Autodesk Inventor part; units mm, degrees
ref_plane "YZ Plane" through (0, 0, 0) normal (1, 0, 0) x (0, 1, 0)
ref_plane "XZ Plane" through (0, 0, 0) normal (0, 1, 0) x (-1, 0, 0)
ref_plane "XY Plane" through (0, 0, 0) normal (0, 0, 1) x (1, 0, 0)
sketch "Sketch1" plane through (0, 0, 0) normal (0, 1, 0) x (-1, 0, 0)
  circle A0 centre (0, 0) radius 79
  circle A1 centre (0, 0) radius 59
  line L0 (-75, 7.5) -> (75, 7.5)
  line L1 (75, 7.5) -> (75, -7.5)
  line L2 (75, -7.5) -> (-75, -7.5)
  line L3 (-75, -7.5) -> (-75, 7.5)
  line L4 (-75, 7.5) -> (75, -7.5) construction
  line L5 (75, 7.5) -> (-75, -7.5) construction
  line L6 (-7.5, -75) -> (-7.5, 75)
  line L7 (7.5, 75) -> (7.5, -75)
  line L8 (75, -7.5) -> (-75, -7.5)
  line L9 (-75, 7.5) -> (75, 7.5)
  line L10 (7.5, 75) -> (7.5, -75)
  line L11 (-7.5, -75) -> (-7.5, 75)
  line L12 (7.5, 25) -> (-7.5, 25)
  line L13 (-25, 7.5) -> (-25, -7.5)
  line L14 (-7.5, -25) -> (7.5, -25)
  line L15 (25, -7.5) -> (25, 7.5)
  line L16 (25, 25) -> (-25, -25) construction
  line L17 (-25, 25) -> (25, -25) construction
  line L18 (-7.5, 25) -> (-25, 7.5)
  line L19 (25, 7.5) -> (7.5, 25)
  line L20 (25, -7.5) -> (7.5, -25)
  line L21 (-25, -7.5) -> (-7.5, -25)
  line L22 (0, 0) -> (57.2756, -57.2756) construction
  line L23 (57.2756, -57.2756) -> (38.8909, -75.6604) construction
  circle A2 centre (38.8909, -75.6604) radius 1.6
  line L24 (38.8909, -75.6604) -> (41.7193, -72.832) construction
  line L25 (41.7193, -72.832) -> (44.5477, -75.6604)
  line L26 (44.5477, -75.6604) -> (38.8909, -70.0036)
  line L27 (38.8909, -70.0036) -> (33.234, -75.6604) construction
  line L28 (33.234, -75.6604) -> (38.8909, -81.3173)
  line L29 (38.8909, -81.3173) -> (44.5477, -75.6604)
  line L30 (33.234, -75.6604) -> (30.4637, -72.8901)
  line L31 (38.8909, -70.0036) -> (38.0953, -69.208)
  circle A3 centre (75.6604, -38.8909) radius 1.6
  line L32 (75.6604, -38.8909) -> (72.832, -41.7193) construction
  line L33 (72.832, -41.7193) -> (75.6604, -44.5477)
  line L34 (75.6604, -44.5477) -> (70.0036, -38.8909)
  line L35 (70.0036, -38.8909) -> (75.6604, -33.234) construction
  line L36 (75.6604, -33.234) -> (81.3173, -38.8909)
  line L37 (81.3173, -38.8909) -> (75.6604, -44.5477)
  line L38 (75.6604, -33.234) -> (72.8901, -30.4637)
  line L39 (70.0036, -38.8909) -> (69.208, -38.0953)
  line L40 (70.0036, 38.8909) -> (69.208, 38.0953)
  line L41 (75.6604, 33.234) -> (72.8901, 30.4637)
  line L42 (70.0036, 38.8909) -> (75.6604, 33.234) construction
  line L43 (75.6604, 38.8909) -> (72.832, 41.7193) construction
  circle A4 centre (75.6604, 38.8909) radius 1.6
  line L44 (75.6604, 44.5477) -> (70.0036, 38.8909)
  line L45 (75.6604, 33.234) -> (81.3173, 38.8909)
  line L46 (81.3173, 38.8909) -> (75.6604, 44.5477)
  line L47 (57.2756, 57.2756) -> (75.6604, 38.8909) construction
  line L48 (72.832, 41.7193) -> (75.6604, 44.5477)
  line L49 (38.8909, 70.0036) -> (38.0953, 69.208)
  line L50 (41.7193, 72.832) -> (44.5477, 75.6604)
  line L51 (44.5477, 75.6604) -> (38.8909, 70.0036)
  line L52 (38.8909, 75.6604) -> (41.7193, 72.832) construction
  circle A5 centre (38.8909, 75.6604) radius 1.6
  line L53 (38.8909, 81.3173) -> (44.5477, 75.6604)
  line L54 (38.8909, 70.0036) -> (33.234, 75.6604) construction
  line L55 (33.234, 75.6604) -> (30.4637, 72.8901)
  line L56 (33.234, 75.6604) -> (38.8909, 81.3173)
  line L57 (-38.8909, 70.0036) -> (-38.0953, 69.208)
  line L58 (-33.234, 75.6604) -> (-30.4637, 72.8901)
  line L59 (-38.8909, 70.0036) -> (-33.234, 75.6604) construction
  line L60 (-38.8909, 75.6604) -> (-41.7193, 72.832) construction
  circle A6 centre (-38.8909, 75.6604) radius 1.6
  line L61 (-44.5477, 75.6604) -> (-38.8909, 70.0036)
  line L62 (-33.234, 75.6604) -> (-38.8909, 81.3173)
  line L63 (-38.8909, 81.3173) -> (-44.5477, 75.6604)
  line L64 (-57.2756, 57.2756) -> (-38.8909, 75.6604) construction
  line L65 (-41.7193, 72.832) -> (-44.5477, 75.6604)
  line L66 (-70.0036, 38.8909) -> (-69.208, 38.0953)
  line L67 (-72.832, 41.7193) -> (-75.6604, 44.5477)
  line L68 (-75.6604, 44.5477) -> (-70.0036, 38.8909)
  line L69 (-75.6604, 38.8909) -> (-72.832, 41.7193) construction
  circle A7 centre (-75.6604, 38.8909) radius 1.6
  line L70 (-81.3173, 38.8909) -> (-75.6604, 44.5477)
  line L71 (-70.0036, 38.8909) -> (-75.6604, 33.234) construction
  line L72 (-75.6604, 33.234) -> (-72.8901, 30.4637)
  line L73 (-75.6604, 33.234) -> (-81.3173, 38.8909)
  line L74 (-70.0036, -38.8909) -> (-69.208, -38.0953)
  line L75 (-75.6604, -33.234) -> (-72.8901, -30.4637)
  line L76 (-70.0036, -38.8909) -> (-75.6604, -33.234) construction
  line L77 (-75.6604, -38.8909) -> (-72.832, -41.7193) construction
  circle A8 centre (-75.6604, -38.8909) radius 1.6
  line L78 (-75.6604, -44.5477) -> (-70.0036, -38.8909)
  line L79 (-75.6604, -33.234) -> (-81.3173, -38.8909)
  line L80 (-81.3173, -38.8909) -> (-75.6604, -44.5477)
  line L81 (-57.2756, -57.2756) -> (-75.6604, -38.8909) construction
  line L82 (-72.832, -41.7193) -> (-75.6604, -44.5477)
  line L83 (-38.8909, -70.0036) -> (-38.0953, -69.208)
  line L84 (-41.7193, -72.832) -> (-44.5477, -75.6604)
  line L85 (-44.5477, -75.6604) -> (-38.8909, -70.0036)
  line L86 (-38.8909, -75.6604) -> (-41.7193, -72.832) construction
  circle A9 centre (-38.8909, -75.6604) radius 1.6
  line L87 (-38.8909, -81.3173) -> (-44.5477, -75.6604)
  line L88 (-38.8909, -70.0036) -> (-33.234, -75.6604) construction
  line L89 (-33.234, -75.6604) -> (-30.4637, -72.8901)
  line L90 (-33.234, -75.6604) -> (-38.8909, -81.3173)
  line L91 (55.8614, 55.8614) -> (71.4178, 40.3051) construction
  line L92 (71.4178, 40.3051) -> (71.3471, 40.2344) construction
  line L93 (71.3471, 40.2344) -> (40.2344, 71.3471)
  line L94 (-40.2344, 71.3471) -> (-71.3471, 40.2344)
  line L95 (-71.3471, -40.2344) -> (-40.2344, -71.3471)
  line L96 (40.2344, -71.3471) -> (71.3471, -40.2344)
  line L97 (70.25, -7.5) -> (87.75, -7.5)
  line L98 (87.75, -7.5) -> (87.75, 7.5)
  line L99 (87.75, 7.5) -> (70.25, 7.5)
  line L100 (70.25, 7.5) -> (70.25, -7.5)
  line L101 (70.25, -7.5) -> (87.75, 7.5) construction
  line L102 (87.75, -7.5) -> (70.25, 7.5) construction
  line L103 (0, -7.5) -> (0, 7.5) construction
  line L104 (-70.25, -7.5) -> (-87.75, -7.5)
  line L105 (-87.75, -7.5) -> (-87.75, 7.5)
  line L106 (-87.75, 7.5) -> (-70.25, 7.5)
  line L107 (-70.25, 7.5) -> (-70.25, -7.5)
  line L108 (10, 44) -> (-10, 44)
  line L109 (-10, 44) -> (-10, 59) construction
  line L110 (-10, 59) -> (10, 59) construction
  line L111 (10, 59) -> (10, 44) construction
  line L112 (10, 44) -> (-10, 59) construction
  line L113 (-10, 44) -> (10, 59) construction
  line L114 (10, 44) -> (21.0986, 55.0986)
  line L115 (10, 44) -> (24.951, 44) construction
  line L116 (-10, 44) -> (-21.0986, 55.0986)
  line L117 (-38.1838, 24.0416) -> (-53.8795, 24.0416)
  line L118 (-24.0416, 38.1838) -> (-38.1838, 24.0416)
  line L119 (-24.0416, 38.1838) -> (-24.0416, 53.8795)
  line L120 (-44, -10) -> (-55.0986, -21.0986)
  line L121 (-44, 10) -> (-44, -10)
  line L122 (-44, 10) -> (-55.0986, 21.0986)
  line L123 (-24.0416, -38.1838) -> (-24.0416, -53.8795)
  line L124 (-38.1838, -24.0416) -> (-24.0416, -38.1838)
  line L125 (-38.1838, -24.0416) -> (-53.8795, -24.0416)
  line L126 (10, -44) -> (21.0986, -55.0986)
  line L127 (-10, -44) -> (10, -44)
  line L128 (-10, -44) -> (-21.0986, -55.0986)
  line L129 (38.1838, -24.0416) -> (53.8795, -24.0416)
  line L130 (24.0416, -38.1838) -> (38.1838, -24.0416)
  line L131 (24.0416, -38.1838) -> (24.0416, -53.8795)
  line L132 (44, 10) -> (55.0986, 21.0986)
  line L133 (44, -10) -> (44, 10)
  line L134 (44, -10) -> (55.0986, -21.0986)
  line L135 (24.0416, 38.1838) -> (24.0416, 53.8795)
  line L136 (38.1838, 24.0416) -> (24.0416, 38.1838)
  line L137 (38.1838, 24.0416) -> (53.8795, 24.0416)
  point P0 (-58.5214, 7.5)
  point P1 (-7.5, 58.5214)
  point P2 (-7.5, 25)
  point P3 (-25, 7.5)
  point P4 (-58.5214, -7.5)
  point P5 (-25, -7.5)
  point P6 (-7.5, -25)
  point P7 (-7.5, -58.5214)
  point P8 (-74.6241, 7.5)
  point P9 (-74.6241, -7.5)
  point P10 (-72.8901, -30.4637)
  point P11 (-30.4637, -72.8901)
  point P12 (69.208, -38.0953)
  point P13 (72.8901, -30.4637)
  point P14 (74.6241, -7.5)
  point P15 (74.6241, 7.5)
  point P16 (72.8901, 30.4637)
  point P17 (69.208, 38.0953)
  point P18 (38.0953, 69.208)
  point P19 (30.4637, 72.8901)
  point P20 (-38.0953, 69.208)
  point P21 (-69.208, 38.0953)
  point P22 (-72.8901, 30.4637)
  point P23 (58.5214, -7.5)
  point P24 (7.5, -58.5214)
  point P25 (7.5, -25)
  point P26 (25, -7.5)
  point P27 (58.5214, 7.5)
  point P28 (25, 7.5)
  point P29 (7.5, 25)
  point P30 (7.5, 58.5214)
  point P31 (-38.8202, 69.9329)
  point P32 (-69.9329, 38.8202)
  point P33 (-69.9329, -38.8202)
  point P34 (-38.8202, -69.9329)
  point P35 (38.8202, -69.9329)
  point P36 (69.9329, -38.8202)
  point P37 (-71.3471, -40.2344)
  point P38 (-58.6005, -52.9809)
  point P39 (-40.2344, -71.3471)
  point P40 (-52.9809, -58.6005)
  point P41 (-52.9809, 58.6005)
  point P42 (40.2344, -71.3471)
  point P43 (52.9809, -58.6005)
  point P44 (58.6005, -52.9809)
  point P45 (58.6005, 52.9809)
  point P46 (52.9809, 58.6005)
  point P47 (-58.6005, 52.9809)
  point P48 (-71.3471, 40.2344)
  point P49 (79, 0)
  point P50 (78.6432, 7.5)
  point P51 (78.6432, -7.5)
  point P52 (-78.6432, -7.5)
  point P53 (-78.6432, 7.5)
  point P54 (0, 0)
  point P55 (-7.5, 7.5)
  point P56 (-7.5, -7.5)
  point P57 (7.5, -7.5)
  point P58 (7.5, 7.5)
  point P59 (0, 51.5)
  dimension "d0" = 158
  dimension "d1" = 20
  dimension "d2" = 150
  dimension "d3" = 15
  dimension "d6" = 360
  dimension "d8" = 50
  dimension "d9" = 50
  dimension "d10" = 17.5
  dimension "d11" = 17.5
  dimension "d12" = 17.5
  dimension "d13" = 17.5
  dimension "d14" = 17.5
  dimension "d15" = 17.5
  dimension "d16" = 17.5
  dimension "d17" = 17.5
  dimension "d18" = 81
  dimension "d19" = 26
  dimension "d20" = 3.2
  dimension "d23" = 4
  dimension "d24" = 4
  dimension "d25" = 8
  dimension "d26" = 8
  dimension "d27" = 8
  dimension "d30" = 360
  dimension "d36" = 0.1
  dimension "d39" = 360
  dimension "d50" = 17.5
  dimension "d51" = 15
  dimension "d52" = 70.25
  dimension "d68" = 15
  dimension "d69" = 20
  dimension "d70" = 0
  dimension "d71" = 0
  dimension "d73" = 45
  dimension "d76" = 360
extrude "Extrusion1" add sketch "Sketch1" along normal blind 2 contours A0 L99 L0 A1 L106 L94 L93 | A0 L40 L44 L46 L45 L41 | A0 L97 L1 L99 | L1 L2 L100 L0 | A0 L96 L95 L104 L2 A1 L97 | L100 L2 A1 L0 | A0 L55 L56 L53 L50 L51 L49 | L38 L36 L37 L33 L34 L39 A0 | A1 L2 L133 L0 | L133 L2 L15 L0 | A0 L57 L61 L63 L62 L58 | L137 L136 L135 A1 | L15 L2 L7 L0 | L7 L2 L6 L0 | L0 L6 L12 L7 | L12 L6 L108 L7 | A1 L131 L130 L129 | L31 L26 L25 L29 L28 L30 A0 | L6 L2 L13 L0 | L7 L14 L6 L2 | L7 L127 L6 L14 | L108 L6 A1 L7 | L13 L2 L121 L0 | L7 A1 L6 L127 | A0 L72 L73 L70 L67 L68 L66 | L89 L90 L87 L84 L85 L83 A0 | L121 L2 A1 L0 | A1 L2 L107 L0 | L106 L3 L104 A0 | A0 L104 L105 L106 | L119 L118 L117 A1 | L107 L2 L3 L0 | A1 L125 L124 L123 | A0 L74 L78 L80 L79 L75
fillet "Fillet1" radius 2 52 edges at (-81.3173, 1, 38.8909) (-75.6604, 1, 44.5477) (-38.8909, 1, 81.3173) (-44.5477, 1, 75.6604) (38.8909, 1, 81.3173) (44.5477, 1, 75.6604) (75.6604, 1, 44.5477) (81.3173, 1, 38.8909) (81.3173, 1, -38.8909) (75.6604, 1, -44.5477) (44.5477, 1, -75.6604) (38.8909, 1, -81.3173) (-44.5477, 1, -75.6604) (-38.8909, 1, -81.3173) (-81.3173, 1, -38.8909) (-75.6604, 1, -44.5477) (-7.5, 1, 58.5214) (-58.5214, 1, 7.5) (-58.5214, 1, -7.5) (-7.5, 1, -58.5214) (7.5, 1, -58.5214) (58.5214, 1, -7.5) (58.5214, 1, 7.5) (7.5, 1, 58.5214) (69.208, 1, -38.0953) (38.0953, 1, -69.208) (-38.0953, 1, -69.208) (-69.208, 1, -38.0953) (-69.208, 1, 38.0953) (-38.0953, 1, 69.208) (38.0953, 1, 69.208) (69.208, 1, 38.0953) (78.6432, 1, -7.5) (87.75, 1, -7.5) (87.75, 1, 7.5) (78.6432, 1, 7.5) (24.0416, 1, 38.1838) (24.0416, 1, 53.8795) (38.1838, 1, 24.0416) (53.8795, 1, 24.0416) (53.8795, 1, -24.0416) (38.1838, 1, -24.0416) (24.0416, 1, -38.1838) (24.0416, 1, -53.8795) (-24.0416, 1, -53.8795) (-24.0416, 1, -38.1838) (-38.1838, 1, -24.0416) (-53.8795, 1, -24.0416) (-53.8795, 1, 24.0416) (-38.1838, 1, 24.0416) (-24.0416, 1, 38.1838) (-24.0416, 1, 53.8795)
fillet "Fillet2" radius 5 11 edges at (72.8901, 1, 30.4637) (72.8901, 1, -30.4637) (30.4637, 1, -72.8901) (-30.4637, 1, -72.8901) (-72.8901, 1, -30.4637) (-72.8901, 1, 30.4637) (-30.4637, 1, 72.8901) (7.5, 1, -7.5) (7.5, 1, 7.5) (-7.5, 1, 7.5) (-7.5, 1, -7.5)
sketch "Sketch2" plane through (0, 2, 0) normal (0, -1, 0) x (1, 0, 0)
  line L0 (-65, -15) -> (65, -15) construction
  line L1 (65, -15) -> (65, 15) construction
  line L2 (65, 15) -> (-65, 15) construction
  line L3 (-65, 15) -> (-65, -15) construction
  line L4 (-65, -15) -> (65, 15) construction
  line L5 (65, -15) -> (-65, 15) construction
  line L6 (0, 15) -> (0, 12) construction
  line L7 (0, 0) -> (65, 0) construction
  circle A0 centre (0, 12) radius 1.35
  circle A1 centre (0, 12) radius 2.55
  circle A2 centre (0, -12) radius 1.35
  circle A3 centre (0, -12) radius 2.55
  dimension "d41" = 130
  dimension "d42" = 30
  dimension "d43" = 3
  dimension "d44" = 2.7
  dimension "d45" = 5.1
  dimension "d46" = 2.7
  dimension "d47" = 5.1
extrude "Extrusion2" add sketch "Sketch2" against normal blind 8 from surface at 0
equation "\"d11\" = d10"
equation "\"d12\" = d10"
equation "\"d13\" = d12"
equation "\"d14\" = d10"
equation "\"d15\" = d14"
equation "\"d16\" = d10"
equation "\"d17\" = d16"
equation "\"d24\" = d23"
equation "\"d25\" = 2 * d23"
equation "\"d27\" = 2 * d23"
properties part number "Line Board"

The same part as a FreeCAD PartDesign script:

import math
import FreeCAD as App
import Part
import Sketcher
from FreeCAD import Vector


def edges_at(feature, points):
    """Names of the edges that pass closest to the given points."""
    edges = feature.Shape.Edges
    near = lambda p: min(range(len(edges)), key=lambda i: edges[i].distToShape(Part.Vertex(*p))[0])
    return sorted({f"Edge{near(p) + 1}" for p in points})

doc = App.newDocument("Part")
params = doc.addObject("Spreadsheet::Sheet", "Params")
for row, (alias, value) in enumerate([
    ("sketch1_radius", "79 mm"),
    ("sketch1_diameter", "3.2 mm"),
    ("sketch1_height", "15 mm"),
    ("sketch1_length", "8 mm"),
    ("sketch1_length2", "20 mm"),
    ("pad1_length", "2 mm"),
    ("fillet_radius", "2 mm"),
    ("fillet2_radius", "5 mm"),
    ("sketch2_diameter", "5.1 mm"),
    ("sketch2_diameter2", "2.7 mm"),
    ("pad2_length", "8 mm"),
], start=1):
    params.set(f"A{row}", alias)
    params.set(f"B{row}", "=" + value)
    params.setAlias(f"B{row}", alias)

body = doc.addObject("PartDesign::Body", "Body")

# Sketch on XZ plane
sketch1 = body.newObject("Sketcher::SketchObject", "Sketch")
sketch1.AttachmentSupport = (doc.getObject("XZ_Plane"), [""])
sketch1.MapMode = "FlatFace"
sketch1.addGeometry(Part.LineSegment(Vector(-72.9, 30.5, 0), Vector(-81.3, 38.9, 0)), False)
sketch1.addGeometry(Part.LineSegment(Vector(-81.3, 38.9, 0), Vector(-75.7, 44.5, 0)), False)
sketch1.addGeometry(Part.LineSegment(Vector(-75.7, 44.5, 0), Vector(-69.2, 38.1, 0)), False)
sketch1.addGeometry(Part.ArcOfCircle(Part.Circle(Vector(0, 0, 0), Vector(0, 0, 1), 79), math.radians(137.88), math.radians(151.17)), False)
sketch1.addGeometry(Part.LineSegment(Vector(-58.6, 53, 0), Vector(-53, 58.6, 0)), False)
sketch1.addGeometry(Part.ArcOfCircle(Part.Circle(Vector(0, 0, 0), Vector(0, 0, 1), 79), math.radians(118.83), math.radians(132.12)), False)
sketch1.addGeometry(Part.LineSegment(Vector(-38.1, 69.2, 0), Vector(-44.5, 75.7, 0)), False)
sketch1.addGeometry(Part.LineSegment(Vector(-44.5, 75.7, 0), Vector(-38.9, 81.3, 0)), False)
sketch1.addGeometry(Part.LineSegment(Vector(-38.9, 81.3, 0), Vector(-30.5, 72.9, 0)), False)
sketch1.addGeometry(Part.ArcOfCircle(Part.Circle(Vector(0, 0, 0), Vector(0, 0, 1), 79), math.radians(67), math.radians(113)), False)
sketch1.addGeometry(Part.LineSegment(Vector(30.5, 72.9, 0), Vector(38.9, 81.3, 0)), False)
sketch1.addGeometry(Part.LineSegment(Vector(38.9, 81.3, 0), Vector(44.5, 75.7, 0)), False)
sketch1.addGeometry(Part.LineSegment(Vector(44.5, 75.7, 0), Vector(38.1, 69.2, 0)), False)
sketch1.addGeometry(Part.ArcOfCircle(Part.Circle(Vector(0, 0, 0), Vector(0, 0, 1), 79), math.radians(47.88), math.radians(61.17)), False)
sketch1.addGeometry(Part.LineSegment(Vector(53, 58.6, 0), Vector(58.6, 53, 0)), False)
sketch1.addGeometry(Part.ArcOfCircle(Part.Circle(Vector(0, 0, 0), Vector(0, 0, 1), 79), math.radians(28.83), math.radians(42.12)), False)
sketch1.addGeometry(Part.LineSegment(Vector(69.2, 38.1, 0), Vector(75.7, 44.5, 0)), False)
sketch1.addGeometry(Part.LineSegment(Vector(75.7, 44.5, 0), Vector(81.3, 38.9, 0)), False)
sketch1.addGeometry(Part.LineSegment(Vector(81.3, 38.9, 0), Vector(72.9, 30.5, 0)), False)
sketch1.addGeometry(Part.ArcOfCircle(Part.Circle(Vector(0, 0, 0), Vector(0, 0, 1), 79), math.radians(5.45), math.radians(22.68)), False)
sketch1.addGeometry(Part.LineSegment(Vector(78.6, 7.5, 0), Vector(87.8, 7.5, 0)), False)
sketch1.addGeometry(Part.LineSegment(Vector(87.8, 7.5, 0), Vector(87.8, -7.5, 0)), False)
sketch1.addGeometry(Part.LineSegment(Vector(87.8, -7.5, 0), Vector(78.6, -7.5, 0)), False)
sketch1.addGeometry(Part.ArcOfCircle(Part.Circle(Vector(0, 0, 0), Vector(0, 0, 1), 79), math.radians(-22.68), math.radians(-5.45)), False)
sketch1.addGeometry(Part.LineSegment(Vector(72.9, -30.5, 0), Vector(81.3, -38.9, 0)), False)
sketch1.addGeometry(Part.LineSegment(Vector(81.3, -38.9, 0), Vector(75.7, -44.5, 0)), False)
sketch1.addGeometry(Part.LineSegment(Vector(75.7, -44.5, 0), Vector(69.2, -38.1, 0)), False)
sketch1.addGeometry(Part.ArcOfCircle(Part.Circle(Vector(0, 0, 0), Vector(0, 0, 1), 79), math.radians(-42.12), math.radians(-28.83)), False)
sketch1.addGeometry(Part.LineSegment(Vector(58.6, -53, 0), Vector(53, -58.6, 0)), False)
sketch1.addGeometry(Part.ArcOfCircle(Part.Circle(Vector(0, 0, 0), Vector(0, 0, 1), 79), math.radians(-61.17), math.radians(-47.88)), False)
sketch1.addGeometry(Part.LineSegment(Vector(38.1, -69.2, 0), Vector(44.5, -75.7, 0)), False)
sketch1.addGeometry(Part.LineSegment(Vector(44.5, -75.7, 0), Vector(38.9, -81.3, 0)), False)
sketch1.addGeometry(Part.LineSegment(Vector(38.9, -81.3, 0), Vector(30.5, -72.9, 0)), False)
sketch1.addGeometry(Part.ArcOfCircle(Part.Circle(Vector(0, 0, 0), Vector(0, 0, 1), 79), math.radians(-113), math.radians(-67)), False)
sketch1.addGeometry(Part.LineSegment(Vector(-30.5, -72.9, 0), Vector(-38.9, -81.3, 0)), False)
sketch1.addGeometry(Part.LineSegment(Vector(-38.9, -81.3, 0), Vector(-44.5, -75.7, 0)), False)
sketch1.addGeometry(Part.LineSegment(Vector(-44.5, -75.7, 0), Vector(-38.1, -69.2, 0)), False)
sketch1.addGeometry(Part.ArcOfCircle(Part.Circle(Vector(0, 0, 0), Vector(0, 0, 1), 79), math.radians(-132.12), math.radians(-118.83)), False)
sketch1.addGeometry(Part.LineSegment(Vector(-53, -58.6, 0), Vector(-58.6, -53, 0)), False)
sketch1.addGeometry(Part.ArcOfCircle(Part.Circle(Vector(0, 0, 0), Vector(0, 0, 1), 79), math.radians(-151.17), math.radians(-137.88)), False)
sketch1.addGeometry(Part.LineSegment(Vector(-69.2, -38.1, 0), Vector(-75.7, -44.5, 0)), False)
sketch1.addGeometry(Part.LineSegment(Vector(-75.7, -44.5, 0), Vector(-81.3, -38.9, 0)), False)
sketch1.addGeometry(Part.LineSegment(Vector(-81.3, -38.9, 0), Vector(-72.9, -30.5, 0)), False)
sketch1.addGeometry(Part.ArcOfCircle(Part.Circle(Vector(0, 0, 0), Vector(0, 0, 1), 79), math.radians(157), math.radians(203)), False)
sketch1.addGeometry(Part.LineSegment(Vector(-58.5, 7.5, 0), Vector(-7.5, 7.5, 0)), False)
sketch1.addGeometry(Part.LineSegment(Vector(-7.5, 7.5, 0), Vector(-7.5, 58.5, 0)), False)
sketch1.addGeometry(Part.ArcOfCircle(Part.Circle(Vector(0, 0, 0), Vector(0, 0, 1), 59), math.radians(97.3), math.radians(114.05)), False)
sketch1.addGeometry(Part.LineSegment(Vector(-24, 53.9, 0), Vector(-24, 38.2, 0)), False)
sketch1.addGeometry(Part.LineSegment(Vector(-24, 38.2, 0), Vector(-38.2, 24, 0)), False)
sketch1.addGeometry(Part.LineSegment(Vector(-38.2, 24, 0), Vector(-53.9, 24, 0)), False)
sketch1.addGeometry(Part.ArcOfCircle(Part.Circle(Vector(0, 0, 0), Vector(0, 0, 1), 59), math.radians(155.95), math.radians(172.7)), False)
sketch1.addGeometry(Part.LineSegment(Vector(7.5, 58.5, 0), Vector(7.5, 7.5, 0)), False)
sketch1.addGeometry(Part.LineSegment(Vector(7.5, 7.5, 0), Vector(58.5, 7.5, 0)), False)
sketch1.addGeometry(Part.ArcOfCircle(Part.Circle(Vector(0, 0, 0), Vector(0, 0, 1), 59), math.radians(7.3), math.radians(24.05)), False)
sketch1.addGeometry(Part.LineSegment(Vector(53.9, 24, 0), Vector(38.2, 24, 0)), False)
sketch1.addGeometry(Part.LineSegment(Vector(38.2, 24, 0), Vector(24, 38.2, 0)), False)
sketch1.addGeometry(Part.LineSegment(Vector(24, 38.2, 0), Vector(24, 53.9, 0)), False)
sketch1.addGeometry(Part.ArcOfCircle(Part.Circle(Vector(0, 0, 0), Vector(0, 0, 1), 59), math.radians(65.95), math.radians(82.7)), False)
sketch1.addGeometry(Part.Circle(Vector(75.7, 38.9, 0), Vector(0, 0, 1), 1.6), False)
sketch1.addGeometry(Part.Circle(Vector(38.9, 75.7, 0), Vector(0, 0, 1), 1.6), False)
sketch1.addGeometry(Part.Circle(Vector(-38.9, 75.7, 0), Vector(0, 0, 1), 1.6), False)
sketch1.addGeometry(Part.Circle(Vector(-75.7, 38.9, 0), Vector(0, 0, 1), 1.6), False)
sketch1.addGeometry(Part.LineSegment(Vector(-53.9, -24, 0), Vector(-38.2, -24, 0)), False)
sketch1.addGeometry(Part.LineSegment(Vector(-38.2, -24, 0), Vector(-24, -38.2, 0)), False)
sketch1.addGeometry(Part.LineSegment(Vector(-24, -38.2, 0), Vector(-24, -53.9, 0)), False)
sketch1.addGeometry(Part.ArcOfCircle(Part.Circle(Vector(0, 0, 0), Vector(0, 0, 1), 59), math.radians(-114.05), math.radians(-97.3)), False)
sketch1.addGeometry(Part.LineSegment(Vector(-7.5, -58.5, 0), Vector(-7.5, -7.5, 0)), False)
sketch1.addGeometry(Part.LineSegment(Vector(-7.5, -7.5, 0), Vector(-58.5, -7.5, 0)), False)
sketch1.addGeometry(Part.ArcOfCircle(Part.Circle(Vector(0, 0, 0), Vector(0, 0, 1), 59), math.radians(-172.7), math.radians(-155.95)), False)
sketch1.addGeometry(Part.LineSegment(Vector(58.5, -7.5, 0), Vector(7.5, -7.5, 0)), False)
sketch1.addGeometry(Part.LineSegment(Vector(7.5, -7.5, 0), Vector(7.5, -58.5, 0)), False)
sketch1.addGeometry(Part.ArcOfCircle(Part.Circle(Vector(0, 0, 0), Vector(0, 0, 1), 59), math.radians(-82.7), math.radians(-65.95)), False)
sketch1.addGeometry(Part.LineSegment(Vector(24, -53.9, 0), Vector(24, -38.2, 0)), False)
sketch1.addGeometry(Part.LineSegment(Vector(24, -38.2, 0), Vector(38.2, -24, 0)), False)
sketch1.addGeometry(Part.LineSegment(Vector(38.2, -24, 0), Vector(53.9, -24, 0)), False)
sketch1.addGeometry(Part.ArcOfCircle(Part.Circle(Vector(0, 0, 0), Vector(0, 0, 1), 59), math.radians(-24.05), math.radians(-7.3)), False)
sketch1.addGeometry(Part.Circle(Vector(-75.7, -38.9, 0), Vector(0, 0, 1), 1.6), False)
sketch1.addGeometry(Part.Circle(Vector(-38.9, -75.7, 0), Vector(0, 0, 1), 1.6), False)
sketch1.addGeometry(Part.Circle(Vector(38.9, -75.7, 0), Vector(0, 0, 1), 1.6), False)
sketch1.addGeometry(Part.Circle(Vector(75.7, -38.9, 0), Vector(0, 0, 1), 1.6), False)
sketch1.addConstraint(Sketcher.Constraint("Coincident", 0, 2, 1, 1))
sketch1.addConstraint(Sketcher.Constraint("Coincident", 1, 2, 2, 1))
sketch1.addConstraint(Sketcher.Constraint("Coincident", 2, 2, 3, 2))
sketch1.addConstraint(Sketcher.Constraint("Coincident", 3, 1, 4, 1))
sketch1.addConstraint(Sketcher.Constraint("Coincident", 4, 2, 5, 2))
sketch1.addConstraint(Sketcher.Constraint("Coincident", 5, 1, 6, 1))
sketch1.addConstraint(Sketcher.Constraint("Coincident", 6, 2, 7, 1))
sketch1.addConstraint(Sketcher.Constraint("Coincident", 7, 2, 8, 1))
sketch1.addConstraint(Sketcher.Constraint("Coincident", 8, 2, 9, 2))
sketch1.addConstraint(Sketcher.Constraint("Coincident", 9, 1, 10, 1))
sketch1.addConstraint(Sketcher.Constraint("Coincident", 10, 2, 11, 1))
sketch1.addConstraint(Sketcher.Constraint("Coincident", 11, 2, 12, 1))
sketch1.addConstraint(Sketcher.Constraint("Coincident", 12, 2, 13, 2))
sketch1.addConstraint(Sketcher.Constraint("Coincident", 13, 1, 14, 1))
sketch1.addConstraint(Sketcher.Constraint("Coincident", 14, 2, 15, 2))
sketch1.addConstraint(Sketcher.Constraint("Coincident", 15, 1, 16, 1))
sketch1.addConstraint(Sketcher.Constraint("Coincident", 16, 2, 17, 1))
sketch1.addConstraint(Sketcher.Constraint("Coincident", 17, 2, 18, 1))
sketch1.addConstraint(Sketcher.Constraint("Coincident", 18, 2, 19, 2))
sketch1.addConstraint(Sketcher.Constraint("Coincident", 19, 1, 20, 1))
sketch1.addConstraint(Sketcher.Constraint("Coincident", 20, 2, 21, 1))
sketch1.addConstraint(Sketcher.Constraint("Coincident", 21, 2, 22, 1))
sketch1.addConstraint(Sketcher.Constraint("Coincident", 22, 2, 23, 2))
sketch1.addConstraint(Sketcher.Constraint("Coincident", 23, 1, 24, 1))
sketch1.addConstraint(Sketcher.Constraint("Coincident", 24, 2, 25, 1))
sketch1.addConstraint(Sketcher.Constraint("Coincident", 25, 2, 26, 1))
sketch1.addConstraint(Sketcher.Constraint("Coincident", 26, 2, 27, 2))
sketch1.addConstraint(Sketcher.Constraint("Coincident", 27, 1, 28, 1))
sketch1.addConstraint(Sketcher.Constraint("Coincident", 28, 2, 29, 2))
sketch1.addConstraint(Sketcher.Constraint("Coincident", 29, 1, 30, 1))
sketch1.addConstraint(Sketcher.Constraint("Coincident", 30, 2, 31, 1))
sketch1.addConstraint(Sketcher.Constraint("Coincident", 31, 2, 32, 1))
sketch1.addConstraint(Sketcher.Constraint("Coincident", 32, 2, 33, 2))
sketch1.addConstraint(Sketcher.Constraint("Coincident", 33, 1, 34, 1))
sketch1.addConstraint(Sketcher.Constraint("Coincident", 34, 2, 35, 1))
sketch1.addConstraint(Sketcher.Constraint("Coincident", 35, 2, 36, 1))
sketch1.addConstraint(Sketcher.Constraint("Coincident", 36, 2, 37, 2))
sketch1.addConstraint(Sketcher.Constraint("Coincident", 37, 1, 38, 1))
sketch1.addConstraint(Sketcher.Constraint("Coincident", 38, 2, 39, 2))
sketch1.addConstraint(Sketcher.Constraint("Coincident", 39, 1, 40, 1))
sketch1.addConstraint(Sketcher.Constraint("Coincident", 40, 2, 41, 1))
sketch1.addConstraint(Sketcher.Constraint("Coincident", 41, 2, 42, 1))
sketch1.addConstraint(Sketcher.Constraint("Coincident", 42, 2, 43, 2))
sketch1.addConstraint(Sketcher.Constraint("Coincident", 43, 1, 0, 1))
sketch1.addConstraint(Sketcher.Constraint("Coincident", 44, 2, 45, 1))
sketch1.addConstraint(Sketcher.Constraint("Coincident", 45, 2, 46, 1))
sketch1.addConstraint(Sketcher.Constraint("Coincident", 46, 2, 47, 1))
sketch1.addConstraint(Sketcher.Constraint("Coincident", 47, 2, 48, 1))
sketch1.addConstraint(Sketcher.Constraint("Coincident", 48, 2, 49, 1))
sketch1.addConstraint(Sketcher.Constraint("Coincident", 49, 2, 50, 1))
sketch1.addConstraint(Sketcher.Constraint("Coincident", 50, 2, 44, 1))
sketch1.addConstraint(Sketcher.Constraint("Coincident", 51, 2, 52, 1))
sketch1.addConstraint(Sketcher.Constraint("Coincident", 52, 2, 53, 1))
sketch1.addConstraint(Sketcher.Constraint("Coincident", 53, 2, 54, 1))
sketch1.addConstraint(Sketcher.Constraint("Coincident", 54, 2, 55, 1))
sketch1.addConstraint(Sketcher.Constraint("Coincident", 55, 2, 56, 1))
sketch1.addConstraint(Sketcher.Constraint("Coincident", 56, 2, 57, 1))
sketch1.addConstraint(Sketcher.Constraint("Coincident", 57, 2, 51, 1))
sketch1.addConstraint(Sketcher.Constraint("Coincident", 62, 2, 63, 1))
sketch1.addConstraint(Sketcher.Constraint("Coincident", 63, 2, 64, 1))
sketch1.addConstraint(Sketcher.Constraint("Coincident", 64, 2, 65, 1))
sketch1.addConstraint(Sketcher.Constraint("Coincident", 65, 2, 66, 1))
sketch1.addConstraint(Sketcher.Constraint("Coincident", 66, 2, 67, 1))
sketch1.addConstraint(Sketcher.Constraint("Coincident", 67, 2, 68, 1))
sketch1.addConstraint(Sketcher.Constraint("Coincident", 68, 2, 62, 1))
sketch1.addConstraint(Sketcher.Constraint("Coincident", 69, 2, 70, 1))
sketch1.addConstraint(Sketcher.Constraint("Coincident", 70, 2, 71, 1))
sketch1.addConstraint(Sketcher.Constraint("Coincident", 71, 2, 72, 1))
sketch1.addConstraint(Sketcher.Constraint("Coincident", 72, 2, 73, 1))
sketch1.addConstraint(Sketcher.Constraint("Coincident", 73, 2, 74, 1))
sketch1.addConstraint(Sketcher.Constraint("Coincident", 74, 2, 75, 1))
sketch1.addConstraint(Sketcher.Constraint("Coincident", 75, 2, 69, 1))
sketch1.addConstraint(Sketcher.Constraint("Horizontal", 20))
sketch1.addConstraint(Sketcher.Constraint("Vertical", 21))
sketch1.addConstraint(Sketcher.Constraint("Horizontal", 22))
sketch1.addConstraint(Sketcher.Constraint("Horizontal", 44))
sketch1.addConstraint(Sketcher.Constraint("Vertical", 45))
sketch1.addConstraint(Sketcher.Constraint("Vertical", 47))
sketch1.addConstraint(Sketcher.Constraint("Horizontal", 49))
sketch1.addConstraint(Sketcher.Constraint("Vertical", 51))
sketch1.addConstraint(Sketcher.Constraint("Horizontal", 52))
sketch1.addConstraint(Sketcher.Constraint("Horizontal", 54))
sketch1.addConstraint(Sketcher.Constraint("Vertical", 56))
sketch1.addConstraint(Sketcher.Constraint("Horizontal", 62))
sketch1.addConstraint(Sketcher.Constraint("Vertical", 64))
sketch1.addConstraint(Sketcher.Constraint("Vertical", 66))
sketch1.addConstraint(Sketcher.Constraint("Horizontal", 67))
sketch1.addConstraint(Sketcher.Constraint("Horizontal", 69))
sketch1.addConstraint(Sketcher.Constraint("Vertical", 70))
sketch1.addConstraint(Sketcher.Constraint("Vertical", 72))
sketch1.addConstraint(Sketcher.Constraint("Horizontal", 74))
sketch1.addConstraint(Sketcher.Constraint("Coincident", 3, 3, -1, 1))
sketch1.addConstraint(Sketcher.Constraint("Coincident", 5, 3, -1, 1))
sketch1.addConstraint(Sketcher.Constraint("Coincident", 9, 3, -1, 1))
sketch1.addConstraint(Sketcher.Constraint("Coincident", 13, 3, -1, 1))
sketch1.addConstraint(Sketcher.Constraint("Coincident", 15, 3, -1, 1))
sketch1.addConstraint(Sketcher.Constraint("Coincident", 19, 3, -1, 1))
sketch1.addConstraint(Sketcher.Constraint("Coincident", 23, 3, -1, 1))
sketch1.addConstraint(Sketcher.Constraint("Coincident", 27, 3, -1, 1))
sketch1.addConstraint(Sketcher.Constraint("Coincident", 29, 3, -1, 1))
sketch1.addConstraint(Sketcher.Constraint("Coincident", 33, 3, -1, 1))
sketch1.addConstraint(Sketcher.Constraint("Coincident", 37, 3, -1, 1))
sketch1.addConstraint(Sketcher.Constraint("Coincident", 39, 3, -1, 1))
sketch1.addConstraint(Sketcher.Constraint("Coincident", 43, 3, -1, 1))
sketch1.addConstraint(Sketcher.Constraint("Coincident", 46, 3, -1, 1))
sketch1.addConstraint(Sketcher.Constraint("Coincident", 50, 3, -1, 1))
sketch1.addConstraint(Sketcher.Constraint("Coincident", 53, 3, -1, 1))
sketch1.addConstraint(Sketcher.Constraint("Coincident", 57, 3, -1, 1))
sketch1.addConstraint(Sketcher.Constraint("Coincident", 65, 3, -1, 1))
sketch1.addConstraint(Sketcher.Constraint("Coincident", 68, 3, -1, 1))
sketch1.addConstraint(Sketcher.Constraint("Coincident", 71, 3, -1, 1))
sketch1.addConstraint(Sketcher.Constraint("Coincident", 75, 3, -1, 1))
sketch1.addConstraint(Sketcher.Constraint("Equal", 3, 5))
sketch1.addConstraint(Sketcher.Constraint("Equal", 5, 9))
sketch1.addConstraint(Sketcher.Constraint("Equal", 9, 13))
sketch1.addConstraint(Sketcher.Constraint("Equal", 13, 15))
sketch1.addConstraint(Sketcher.Constraint("Equal", 15, 19))
sketch1.addConstraint(Sketcher.Constraint("Equal", 19, 23))
sketch1.addConstraint(Sketcher.Constraint("Equal", 23, 27))
sketch1.addConstraint(Sketcher.Constraint("Equal", 27, 29))
sketch1.addConstraint(Sketcher.Constraint("Equal", 29, 33))
sketch1.addConstraint(Sketcher.Constraint("Equal", 33, 37))
sketch1.addConstraint(Sketcher.Constraint("Equal", 37, 39))
sketch1.addConstraint(Sketcher.Constraint("Equal", 39, 43))
sketch1.addConstraint(Sketcher.Constraint("Equal", 46, 50))
sketch1.addConstraint(Sketcher.Constraint("Equal", 50, 53))
sketch1.addConstraint(Sketcher.Constraint("Equal", 53, 57))
sketch1.addConstraint(Sketcher.Constraint("Equal", 58, 59))
sketch1.addConstraint(Sketcher.Constraint("Equal", 59, 60))
sketch1.addConstraint(Sketcher.Constraint("Equal", 60, 61))
sketch1.addConstraint(Sketcher.Constraint("Equal", 57, 65))
sketch1.addConstraint(Sketcher.Constraint("Equal", 65, 68))
sketch1.addConstraint(Sketcher.Constraint("Equal", 68, 71))
sketch1.addConstraint(Sketcher.Constraint("Equal", 71, 75))
sketch1.addConstraint(Sketcher.Constraint("Equal", 61, 76))
sketch1.addConstraint(Sketcher.Constraint("Equal", 76, 77))
sketch1.addConstraint(Sketcher.Constraint("Equal", 77, 78))
sketch1.addConstraint(Sketcher.Constraint("Equal", 78, 79))
sketch1.addConstraint(Sketcher.Constraint("Symmetric", 58, 3, 76, 3, -1, 1))
sketch1.addConstraint(Sketcher.Constraint("Symmetric", 59, 3, 77, 3, -1, 1))
sketch1.addConstraint(Sketcher.Constraint("Symmetric", 60, 3, 78, 3, -1, 1))
sketch1.addConstraint(Sketcher.Constraint("Symmetric", 61, 3, 79, 3, -1, 1))
sketch1.addConstraint(Sketcher.Constraint("Symmetric", 0, 2, 24, 2, -1, 1))
sketch1.addConstraint(Sketcher.Constraint("Symmetric", 1, 2, 25, 2, -1, 1))
sketch1.addConstraint(Sketcher.Constraint("Symmetric", 6, 2, 30, 2, -1, 1))
sketch1.addConstraint(Sketcher.Constraint("Symmetric", 7, 2, 31, 2, -1, 1))
sketch1.addConstraint(Sketcher.Constraint("Symmetric", 10, 2, 34, 2, -1, 1))
sketch1.addConstraint(Sketcher.Constraint("Symmetric", 11, 2, 35, 2, -1, 1))
sketch1.addConstraint(Sketcher.Constraint("Symmetric", 16, 2, 40, 2, -1, 1))
sketch1.addConstraint(Sketcher.Constraint("Symmetric", 17, 2, 41, 2, -1, 1))
sketch1.addConstraint(Sketcher.Constraint("Symmetric", 54, 2, 62, 2, -1, 1))
sketch1.addConstraint(Sketcher.Constraint("Symmetric", 55, 2, 63, 2, -1, 1))
sketch1.addConstraint(Sketcher.Constraint("Symmetric", 51, 2, 66, 2, -1, 1))
sketch1.addConstraint(Sketcher.Constraint("Symmetric", 44, 2, 69, 2, -1, 1))
sketch1.addConstraint(Sketcher.Constraint("Symmetric", 47, 2, 72, 2, -1, 1))
sketch1.addConstraint(Sketcher.Constraint("Symmetric", 48, 2, 73, 2, -1, 1))
sketch1.addConstraint(Sketcher.Constraint("Symmetric", 59, 3, 60, 3, -2))
sketch1.addConstraint(Sketcher.Constraint("Symmetric", 58, 3, 61, 3, -2))
sketch1.addConstraint(Sketcher.Constraint("Symmetric", 7, 2, 10, 2, -2))
sketch1.addConstraint(Sketcher.Constraint("Symmetric", 6, 2, 11, 2, -2))
sketch1.addConstraint(Sketcher.Constraint("Symmetric", 1, 2, 16, 2, -2))
sketch1.addConstraint(Sketcher.Constraint("Symmetric", 0, 2, 17, 2, -2))
sketch1.addConstraint(Sketcher.Constraint("Symmetric", 44, 2, 51, 2, -2))
sketch1.addConstraint(Sketcher.Constraint("Symmetric", 48, 2, 54, 2, -2))
sketch1.addConstraint(Sketcher.Constraint("Symmetric", 47, 2, 55, 2, -2))
sketch1.addConstraint(Sketcher.Constraint("Perpendicular", 0, 1))
sketch1.addConstraint(Sketcher.Constraint("Perpendicular", 1, 2))
sketch1.addConstraint(Sketcher.Constraint("Perpendicular", 2, 4))
sketch1.addConstraint(Sketcher.Constraint("Perpendicular", 4, 6))
sketch1.addConstraint(Sketcher.Constraint("Perpendicular", 6, 7))
sketch1.addConstraint(Sketcher.Constraint("Perpendicular", 7, 8))
sketch1.addConstraint(Sketcher.Constraint("Perpendicular", 8, 10))
sketch1.addConstraint(Sketcher.Constraint("Perpendicular", 10, 11))
sketch1.addConstraint(Sketcher.Constraint("Perpendicular", 11, 12))
sketch1.addConstraint(Sketcher.Constraint("Perpendicular", 12, 14))
sketch1.addConstraint(Sketcher.Constraint("Perpendicular", 14, 16))
sketch1.addConstraint(Sketcher.Constraint("Perpendicular", 17, 18))
sketch1.addConstraint(Sketcher.Constraint("Perpendicular", 18, 24))
sketch1.addConstraint(Sketcher.Constraint("Perpendicular", 25, 26))
sketch1.addConstraint(Sketcher.Constraint("Perpendicular", 26, 28))
sketch1.addConstraint(Sketcher.Constraint("Perpendicular", 28, 30))
sketch1.addConstraint(Sketcher.Constraint("Perpendicular", 31, 32))
sketch1.addConstraint(Sketcher.Constraint("Perpendicular", 32, 34))
sketch1.addConstraint(Sketcher.Constraint("Perpendicular", 35, 36))
sketch1.addConstraint(Sketcher.Constraint("Perpendicular", 36, 38))
sketch1.addConstraint(Sketcher.Constraint("Perpendicular", 38, 40))
sketch1.addConstraint(Sketcher.Constraint("Perpendicular", 41, 42))
sketch1.addConstraint(Sketcher.Constraint("Parallel", 42, 48))
sketch1.addConstraint(Sketcher.Constraint("Horizontal", 61, 3, 0, 2))
sketch1.addConstraint(Sketcher.Constraint("Horizontal", 60, 3, 6, 2))
sketch1.addConstraint(Sketcher.Constraint("Horizontal", 4, 2, 13, 1))
sketch1.addConstraint(Sketcher.Constraint("Horizontal", 28, 2, 37, 1))
sketch1.addConstraint(Sketcher.Constraint("Horizontal", 20, 2, 44, 2))
sketch1.addConstraint(Sketcher.Constraint("Horizontal", 22, 2, 66, 2))
sketch1.addConstraint(Sketcher.Constraint("Vertical", 76, 3, 1, 2))
sketch1.addConstraint(Sketcher.Constraint("Vertical", 77, 3, 7, 2))
sketch1.addConstraint(Sketcher.Constraint("Vertical", 14, 2, 27, 1))
sketch1.addConstraint(Sketcher.Constraint("Equal", 69, 45))
sketch1.addConstraint(Sketcher.Constraint("Equal", 74, 47))
sketch1.addConstraint(Sketcher.Constraint("Equal", 2, 6))
sketch1.addConstraint(Sketcher.Constraint("Equal", 1, 7))
sketch1.addConstraint(Sketcher.Constraint("Equal", 0, 8))
sketch1.addConstraint(Sketcher.Constraint("Radius", 3, 79.0))
sketch1.addConstraint(Sketcher.Constraint("Diameter", 58, 3.2))
sketch1.addConstraint(Sketcher.Constraint("DistanceY", 21, 2, 21, 1, 15.0))
sketch1.addConstraint(Sketcher.Constraint("Distance", 1, 8.0))
sketch1.addConstraint(Sketcher.Constraint("Distance", 48, 20.0))
sketch1.addConstraint(Sketcher.Constraint("Radius", 46, 59.0))
sketch1.addConstraint(Sketcher.Constraint("DistanceX", 3, 1, -1, 1, 58.6))
sketch1.addConstraint(Sketcher.Constraint("DistanceY", -1, 1, 8, 2, 72.89))
sketch1.addConstraint(Sketcher.Constraint("DistanceX", -1, 1, 20, 2, 87.75))
sketch1.addConstraint(Sketcher.Constraint("Distance", 2, 9.125))
sketch1.addConstraint(Sketcher.Constraint("DistanceX", 49, 2, 49, 1, 15.6957))
sketch1.setExpression("Constraints[202]", "Params.sketch1_radius")
sketch1.setExpression("Constraints[203]", "Params.sketch1_diameter")
sketch1.setExpression("Constraints[204]", "Params.sketch1_height")
sketch1.setExpression("Constraints[205]", "Params.sketch1_length")
sketch1.setExpression("Constraints[206]", "Params.sketch1_length2")
pad1 = body.newObject("PartDesign::Pad", "Pad")
pad1.Profile = sketch1
pad1.setExpression("Length", "Params.pad1_length")
pad1.Reversed = True
doc.recompute()

fillet = body.newObject("PartDesign::Fillet", "Fillet")
fillet.Base = (pad1, edges_at(pad1, [
    (-81.317, 1, 38.891),
    (-75.66, 1, 44.548),
    (-38.891, 1, 81.317),
    (-44.548, 1, 75.66),
    (38.891, 1, 81.317),
    (44.548, 1, 75.66),
    (75.66, 1, 44.548),
    (81.317, 1, 38.891),
    (81.317, 1, -38.891),
    (75.66, 1, -44.548),
    (44.548, 1, -75.66),
    (38.891, 1, -81.317),
    (-44.548, 1, -75.66),
    (-38.891, 1, -81.317),
    (-81.317, 1, -38.891),
    (-75.66, 1, -44.548),
    (-7.5, 1, 58.521),
    (-58.521, 1, 7.5),
    (-58.521, 1, -7.5),
    (-7.5, 1, -58.521),
    (7.5, 1, -58.521),
    (58.521, 1, -7.5),
    (58.521, 1, 7.5),
    (7.5, 1, 58.521),
    (69.208, 1, -38.095),
    (38.095, 1, -69.208),
    (-38.095, 1, -69.208),
    (-69.208, 1, -38.095),
    (-69.208, 1, 38.095),
    (-38.095, 1, 69.208),
    (38.095, 1, 69.208),
    (69.208, 1, 38.095),
    (78.643, 1, -7.5),
    (87.75, 1, -7.5),
    (87.75, 1, 7.5),
    (78.643, 1, 7.5),
    (24.042, 1, 38.184),
    (24.042, 1, 53.88),
    (38.184, 1, 24.042),
    (53.88, 1, 24.042),
    (53.88, 1, -24.042),
    (38.184, 1, -24.042),
    (24.042, 1, -38.184),
    (24.042, 1, -53.88),
    (-24.042, 1, -53.88),
    (-24.042, 1, -38.184),
    (-38.184, 1, -24.042),
    (-53.88, 1, -24.042),
    (-53.88, 1, 24.042),
    (-38.184, 1, 24.042),
    (-24.042, 1, 38.184),
    (-24.042, 1, 53.88),
]))
fillet.setExpression("Radius", "Params.fillet_radius")
doc.recompute()

fillet2 = body.newObject("PartDesign::Fillet", "Fillet001")
fillet2.Base = (fillet, edges_at(fillet, [
    (72.89, 1, 30.464),
    (72.89, 1, -30.464),
    (30.464, 1, -72.89),
    (-30.464, 1, -72.89),
    (-72.89, 1, -30.464),
    (-72.89, 1, 30.464),
    (-30.464, 1, 72.89),
    (7.5, 1, -7.5),
    (7.5, 1, 7.5),
    (-7.5, 1, 7.5),
    (-7.5, 1, -7.5),
]))
fillet2.setExpression("Radius", "Params.fillet2_radius")

# Sketch on XZ plane
sketch2 = body.newObject("Sketcher::SketchObject", "Sketch001")
sketch2.AttachmentSupport = (doc.getObject("XZ_Plane"), [""])
sketch2.MapMode = "FlatFace"
sketch2.AttachmentOffset = App.Placement(Vector(0, 0, -2), App.Rotation())
sketch2.addGeometry(Part.Circle(Vector(0, 12, 0), Vector(0, 0, 1), 2.5), False)
sketch2.addGeometry(Part.Circle(Vector(0, 12, 0), Vector(0, 0, 1), 1.4), False)
sketch2.addGeometry(Part.Circle(Vector(0, -12, 0), Vector(0, 0, 1), 2.5), False)
sketch2.addGeometry(Part.Circle(Vector(0, -12, 0), Vector(0, 0, 1), 1.4), False)
sketch2.addConstraint(Sketcher.Constraint("Coincident", 1, 3, 0, 3))
sketch2.addConstraint(Sketcher.Constraint("Coincident", 3, 3, 2, 3))
sketch2.addConstraint(Sketcher.Constraint("Equal", 0, 2))
sketch2.addConstraint(Sketcher.Constraint("Equal", 1, 3))
sketch2.addConstraint(Sketcher.Constraint("Symmetric", 0, 3, 2, 3, -1, 1))
sketch2.addConstraint(Sketcher.Constraint("PointOnObject", 0, 3, -2))
sketch2.addConstraint(Sketcher.Constraint("Diameter", 0, 5.1))
sketch2.addConstraint(Sketcher.Constraint("Diameter", 1, 2.7))
sketch2.addConstraint(Sketcher.Constraint("DistanceY", -1, 1, 0, 3, 12.0))
sketch2.setExpression("Constraints[6]", "Params.sketch2_diameter")
sketch2.setExpression("Constraints[7]", "Params.sketch2_diameter2")
pad2 = body.newObject("PartDesign::Pad", "Pad001")
pad2.Profile = sketch2
pad2.setExpression("Length", "Params.pad2_length")
pad2.Reversed = True

doc.recompute()
